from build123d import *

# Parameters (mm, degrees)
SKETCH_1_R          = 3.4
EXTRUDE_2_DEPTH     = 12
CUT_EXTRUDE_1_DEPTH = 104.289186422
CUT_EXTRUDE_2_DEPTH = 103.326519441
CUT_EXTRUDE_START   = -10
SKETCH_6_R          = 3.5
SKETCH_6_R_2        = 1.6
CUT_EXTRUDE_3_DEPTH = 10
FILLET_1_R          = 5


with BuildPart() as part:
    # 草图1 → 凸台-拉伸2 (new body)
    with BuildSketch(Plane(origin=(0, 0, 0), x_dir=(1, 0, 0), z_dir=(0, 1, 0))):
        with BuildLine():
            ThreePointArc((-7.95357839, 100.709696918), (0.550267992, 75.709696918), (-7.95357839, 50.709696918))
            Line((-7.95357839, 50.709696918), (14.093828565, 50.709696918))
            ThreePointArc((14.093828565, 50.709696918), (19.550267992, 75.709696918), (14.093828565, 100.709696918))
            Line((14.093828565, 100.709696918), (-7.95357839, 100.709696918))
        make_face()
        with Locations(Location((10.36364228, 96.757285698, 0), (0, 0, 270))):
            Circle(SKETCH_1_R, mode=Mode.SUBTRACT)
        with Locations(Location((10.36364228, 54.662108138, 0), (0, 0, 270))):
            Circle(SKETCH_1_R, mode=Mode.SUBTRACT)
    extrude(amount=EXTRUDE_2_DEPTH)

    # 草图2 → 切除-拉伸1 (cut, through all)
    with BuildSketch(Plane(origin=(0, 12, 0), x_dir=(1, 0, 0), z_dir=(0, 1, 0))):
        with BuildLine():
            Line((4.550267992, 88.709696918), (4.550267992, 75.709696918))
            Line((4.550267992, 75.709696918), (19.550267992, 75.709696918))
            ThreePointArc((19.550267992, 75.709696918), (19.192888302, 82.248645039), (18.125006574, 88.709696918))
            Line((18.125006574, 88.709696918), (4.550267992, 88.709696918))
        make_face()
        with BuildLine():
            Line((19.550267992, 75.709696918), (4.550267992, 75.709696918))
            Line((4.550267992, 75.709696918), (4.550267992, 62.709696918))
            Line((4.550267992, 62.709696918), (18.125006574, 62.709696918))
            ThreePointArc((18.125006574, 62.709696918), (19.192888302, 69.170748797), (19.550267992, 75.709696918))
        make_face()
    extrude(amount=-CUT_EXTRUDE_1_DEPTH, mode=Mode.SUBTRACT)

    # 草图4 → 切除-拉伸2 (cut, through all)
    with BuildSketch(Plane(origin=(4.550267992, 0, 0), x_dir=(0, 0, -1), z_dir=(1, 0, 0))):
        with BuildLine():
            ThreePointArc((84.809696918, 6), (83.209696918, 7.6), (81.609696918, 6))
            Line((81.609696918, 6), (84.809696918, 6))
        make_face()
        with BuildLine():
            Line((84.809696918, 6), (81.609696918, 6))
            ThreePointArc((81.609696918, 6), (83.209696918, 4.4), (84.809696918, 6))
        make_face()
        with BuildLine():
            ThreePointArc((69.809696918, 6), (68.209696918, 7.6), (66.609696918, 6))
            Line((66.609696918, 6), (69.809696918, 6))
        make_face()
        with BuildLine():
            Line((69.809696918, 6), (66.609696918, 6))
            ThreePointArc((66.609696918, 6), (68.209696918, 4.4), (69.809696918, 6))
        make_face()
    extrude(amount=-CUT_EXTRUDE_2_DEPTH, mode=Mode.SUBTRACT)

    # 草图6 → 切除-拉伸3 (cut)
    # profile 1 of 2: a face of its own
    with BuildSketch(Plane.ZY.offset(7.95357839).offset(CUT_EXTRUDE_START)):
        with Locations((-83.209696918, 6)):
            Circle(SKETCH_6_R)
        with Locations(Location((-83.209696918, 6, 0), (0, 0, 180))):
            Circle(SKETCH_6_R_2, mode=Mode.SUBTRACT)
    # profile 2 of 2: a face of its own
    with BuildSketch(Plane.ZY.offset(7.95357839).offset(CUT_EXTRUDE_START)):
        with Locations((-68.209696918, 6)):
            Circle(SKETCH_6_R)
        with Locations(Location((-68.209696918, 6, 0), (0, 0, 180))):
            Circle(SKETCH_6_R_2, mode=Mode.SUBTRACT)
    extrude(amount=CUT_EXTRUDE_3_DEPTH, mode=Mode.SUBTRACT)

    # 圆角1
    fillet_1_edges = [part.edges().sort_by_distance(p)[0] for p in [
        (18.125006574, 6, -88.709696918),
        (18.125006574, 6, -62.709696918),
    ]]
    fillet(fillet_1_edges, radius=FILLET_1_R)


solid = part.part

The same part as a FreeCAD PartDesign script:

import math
import FreeCAD as App
import Part
import Sketcher


def edges_at(feature, points):
    """Names of the edges that pass closest to the given points."""
    edges = feature.Shape.Edges
    near = lambda p: min(range(len(edges)), key=lambda i: edges[i].distToShape(Part.Vertex(*p))[0])
    return sorted({f"Edge{near(p) + 1}" for p in points})

doc = App.newDocument("Part")
body = doc.addObject("PartDesign::Body", "Body")

# Sketch on XZ plane
sketch1 = body.newObject("Sketcher::SketchObject", "Sketch")
sketch1.AttachmentSupport = (doc.getObject("XZ_Plane"), [""])
sketch1.MapMode = "FlatFace"
sketch1.addGeometry([
    Part.ArcOfCircle(Part.Circle(App.Vector(-40.4, -75.7, 0), App.Vector(0, 0, 1), 41), math.radians(-38), math.radians(38)),  # 0
    Part.LineSegment(App.Vector(-8, -50.7, 0), App.Vector(14.1, -50.7, 0)),  # 1
    Part.ArcOfCircle(Part.Circle(App.Vector(-40.4, -75.7, 0), App.Vector(0, 0, 1), 60), math.radians(-25), math.radians(25)),  # 2
    Part.LineSegment(App.Vector(14.1, -100.7, 0), App.Vector(-8, -100.7, 0)),  # 3
    Part.Circle(App.Vector(10.4, -54.7, 0), App.Vector(0, 0, 1), 3.4),  # 4
    Part.Circle(App.Vector(10.4, -96.8, 0), App.Vector(0, 0, 1), 3.4),  # 5
], False)
sketch1.addConstraint([
    Sketcher.Constraint("Coincident", 0, 2, 1, 1),
    Sketcher.Constraint("Coincident", 1, 2, 2, 2),
    Sketcher.Constraint("Coincident", 2, 1, 3, 1),
    Sketcher.Constraint("Coincident", 3, 2, 0, 1),
    Sketcher.Constraint("Horizontal", 1),
    Sketcher.Constraint("Horizontal", 3),
    Sketcher.Constraint("Coincident", 2, 3, 0, 3),
    Sketcher.Constraint("Equal", 4, 5),
    Sketcher.Constraint("Vertical", 4, 3, 5, 3),
    Sketcher.Constraint("Vertical", 1, 2, 2, 1),
    Sketcher.Constraint("Radius", 0, 41.0),
    Sketcher.Constraint("Radius", 2, 60.0),
    Sketcher.Constraint("Diameter", 4, 6.8),
    Sketcher.Constraint("DistanceY", 0, 3, 0, 2, 25.0),
    Sketcher.Constraint("DistanceY", 4, 3, -1, 1, 54.662108),
    Sketcher.Constraint("DistanceX", 0, 2, -1, 1, 7.953578),
    Sketcher.Constraint("DistanceY", 0, 3, 4, 3, 21.047589),
    Sketcher.Constraint("DistanceY", 5, 3, 0, 3, 21.047589),
    Sketcher.Constraint("DistanceX", 0, 2, 4, 3, 18.317221),
])
pad1 = body.newObject("PartDesign::Pad", "Pad")
pad1.Profile = sketch1
pad1.Length = 12
pad1.Reversed = True

# Sketch on XZ plane
sketch2 = body.newObject("Sketcher::SketchObject", "Sketch001")
sketch2.AttachmentSupport = (doc.getObject("XZ_Plane"), [""])
sketch2.MapMode = "FlatFace"
sketch2.AttachmentOffset = App.Placement(App.Vector(0, 0, -12), App.Rotation())
sketch2.addGeometry([
    Part.LineSegment(App.Vector(5, -89, 0), App.Vector(5, -63, 0)),  # 0
    Part.LineSegment(App.Vector(5, -63, 0), App.Vector(18, -63, 0)),  # 1
    Part.ArcOfCircle(Part.Circle(App.Vector(-40, -76, 0), App.Vector(0, 0, 1), 60), math.radians(0), math.radians(12.51)),  # 2
    Part.ArcOfCircle(Part.Circle(App.Vector(-40, -76, 0), App.Vector(0, 0, 1), 60), math.radians(-12.51), math.radians(0)),  # 3
    Part.LineSegment(App.Vector(18, -89, 0), App.Vector(5, -89, 0)),  # 4
], False)
sketch2.addConstraint([
    Sketcher.Constraint("Coincident", 0, 2, 1, 1),
    Sketcher.Constraint("Coincident", 1, 2, 2, 2),
    Sketcher.Constraint("Tangent", 2, 1, 3, 2),
    Sketcher.Constraint("Coincident", 3, 1, 4, 1),
    Sketcher.Constraint("Coincident", 4, 2, 0, 1),
    Sketcher.Constraint("Vertical", 0),
    Sketcher.Constraint("Horizontal", 1),
    Sketcher.Constraint("Horizontal", 4),
    Sketcher.Constraint("Equal", 2, 3),
    Sketcher.Constraint("Horizontal", 3, 3, 2, 1),
    Sketcher.Constraint("Vertical", 1, 2, 3, 1),
    Sketcher.Constraint("Radius", 2, 60.0),
    Sketcher.Constraint("DistanceY", 0, 1, 0, 2, 26.0),
    Sketcher.Constraint("DistanceX", 3, 3, 0, 2, 45.0),
    Sketcher.Constraint("DistanceX", 2, 3, -1, 1, 40.449732),
    Sketcher.Constraint("DistanceY", 2, 3, -1, 1, 75.709697),
])
pocket1 = body.newObject("PartDesign::Pocket", "Pocket")
pocket1.Profile = sketch2
pocket1.Type = "ThroughAll"
pocket1.Reversed = True

# Sketch on YZ plane
sketch3 = body.newObject("Sketcher::SketchObject", "Sketch002")
sketch3.AttachmentSupport = (doc.getObject("YZ_Plane"), [""])
sketch3.MapMode = "FlatFace"
sketch3.AttachmentOffset = App.Placement(App.Vector(0, 0, 4.550268), App.Rotation())
sketch3.addGeometry([
    Part.Circle(App.Vector(6, -83.2, 0), App.Vector(0, 0, 1), 1.6),
    Part.Circle(App.Vector(6, -68.2, 0), App.Vector(0, 0, 1), 1.6),
], False)
sketch3.addConstraint([
    Sketcher.Constraint("Equal", 0, 1),
    Sketcher.Constraint("Vertical", 0, 3, 1, 3),
    Sketcher.Constraint("Diameter", 0, 3.2),
    Sketcher.Constraint("DistanceX", -1, 1, 0, 3, 6.0),
    Sketcher.Constraint("DistanceY", 0, 3, 1, 3, 15.0),
    Sketcher.Constraint("DistanceY", 0, 3, -1, 1, 83.209697),
])
pocket2 = body.newObject("PartDesign::Pocket", "Pocket001")
pocket2.Profile = sketch3
pocket2.Type = "ThroughAll"

# Sketch on YZ plane
sketch4 = body.newObject("Sketcher::SketchObject", "Sketch003")
sketch4.AttachmentSupport = (doc.getObject("YZ_Plane"), [""])
sketch4.MapMode = "FlatFace"
sketch4.AttachmentOffset = App.Placement(App.Vector(0, 0, 2.046422), App.Rotation())
sketch4.addGeometry([
    Part.Circle(App.Vector(6, -83.2, 0), App.Vector(0, 0, 1), 3.5),
    Part.Circle(App.Vector(6, -83.2, 0), App.Vector(0, 0, 1), 1.6),
    Part.Circle(App.Vector(6, -68.2, 0), App.Vector(0, 0, 1), 3.5),
    Part.Circle(App.Vector(6, -68.2, 0), App.Vector(0, 0, 1), 1.6),
], False)
sketch4.addConstraint([
    Sketcher.Constraint("Coincident", 1, 3, 0, 3),
    Sketcher.Constraint("Coincident", 3, 3, 2, 3),
    Sketcher.Constraint("Equal", 0, 2),
    Sketcher.Constraint("Equal", 1, 3),
    Sketcher.Constraint("Vertical", 1, 3, 2, 3),
    Sketcher.Constraint("Diameter", 0, 7.0),
    Sketcher.Constraint("Diameter", 1, 3.2),
    Sketcher.Constraint("DistanceX", -1, 1, 0, 3, 6.0),
    Sketcher.Constraint("DistanceY", 0, 3, 2, 3, 15.0),
    Sketcher.Constraint("DistanceY", 0, 3, -1, 1, 83.209697),
])
pocket3 = body.newObject("PartDesign::Pocket", "Pocket002")
pocket3.Profile = sketch4
pocket3.Length = 10
doc.recompute()

fillet = body.newObject("PartDesign::Fillet", "Fillet")
fillet.Base = (pocket3, edges_at(pocket3, [(18.125, 6, -88.71), (18.125, 6, -62.71)]))
fillet.Radius = 5

doc.recompute()
